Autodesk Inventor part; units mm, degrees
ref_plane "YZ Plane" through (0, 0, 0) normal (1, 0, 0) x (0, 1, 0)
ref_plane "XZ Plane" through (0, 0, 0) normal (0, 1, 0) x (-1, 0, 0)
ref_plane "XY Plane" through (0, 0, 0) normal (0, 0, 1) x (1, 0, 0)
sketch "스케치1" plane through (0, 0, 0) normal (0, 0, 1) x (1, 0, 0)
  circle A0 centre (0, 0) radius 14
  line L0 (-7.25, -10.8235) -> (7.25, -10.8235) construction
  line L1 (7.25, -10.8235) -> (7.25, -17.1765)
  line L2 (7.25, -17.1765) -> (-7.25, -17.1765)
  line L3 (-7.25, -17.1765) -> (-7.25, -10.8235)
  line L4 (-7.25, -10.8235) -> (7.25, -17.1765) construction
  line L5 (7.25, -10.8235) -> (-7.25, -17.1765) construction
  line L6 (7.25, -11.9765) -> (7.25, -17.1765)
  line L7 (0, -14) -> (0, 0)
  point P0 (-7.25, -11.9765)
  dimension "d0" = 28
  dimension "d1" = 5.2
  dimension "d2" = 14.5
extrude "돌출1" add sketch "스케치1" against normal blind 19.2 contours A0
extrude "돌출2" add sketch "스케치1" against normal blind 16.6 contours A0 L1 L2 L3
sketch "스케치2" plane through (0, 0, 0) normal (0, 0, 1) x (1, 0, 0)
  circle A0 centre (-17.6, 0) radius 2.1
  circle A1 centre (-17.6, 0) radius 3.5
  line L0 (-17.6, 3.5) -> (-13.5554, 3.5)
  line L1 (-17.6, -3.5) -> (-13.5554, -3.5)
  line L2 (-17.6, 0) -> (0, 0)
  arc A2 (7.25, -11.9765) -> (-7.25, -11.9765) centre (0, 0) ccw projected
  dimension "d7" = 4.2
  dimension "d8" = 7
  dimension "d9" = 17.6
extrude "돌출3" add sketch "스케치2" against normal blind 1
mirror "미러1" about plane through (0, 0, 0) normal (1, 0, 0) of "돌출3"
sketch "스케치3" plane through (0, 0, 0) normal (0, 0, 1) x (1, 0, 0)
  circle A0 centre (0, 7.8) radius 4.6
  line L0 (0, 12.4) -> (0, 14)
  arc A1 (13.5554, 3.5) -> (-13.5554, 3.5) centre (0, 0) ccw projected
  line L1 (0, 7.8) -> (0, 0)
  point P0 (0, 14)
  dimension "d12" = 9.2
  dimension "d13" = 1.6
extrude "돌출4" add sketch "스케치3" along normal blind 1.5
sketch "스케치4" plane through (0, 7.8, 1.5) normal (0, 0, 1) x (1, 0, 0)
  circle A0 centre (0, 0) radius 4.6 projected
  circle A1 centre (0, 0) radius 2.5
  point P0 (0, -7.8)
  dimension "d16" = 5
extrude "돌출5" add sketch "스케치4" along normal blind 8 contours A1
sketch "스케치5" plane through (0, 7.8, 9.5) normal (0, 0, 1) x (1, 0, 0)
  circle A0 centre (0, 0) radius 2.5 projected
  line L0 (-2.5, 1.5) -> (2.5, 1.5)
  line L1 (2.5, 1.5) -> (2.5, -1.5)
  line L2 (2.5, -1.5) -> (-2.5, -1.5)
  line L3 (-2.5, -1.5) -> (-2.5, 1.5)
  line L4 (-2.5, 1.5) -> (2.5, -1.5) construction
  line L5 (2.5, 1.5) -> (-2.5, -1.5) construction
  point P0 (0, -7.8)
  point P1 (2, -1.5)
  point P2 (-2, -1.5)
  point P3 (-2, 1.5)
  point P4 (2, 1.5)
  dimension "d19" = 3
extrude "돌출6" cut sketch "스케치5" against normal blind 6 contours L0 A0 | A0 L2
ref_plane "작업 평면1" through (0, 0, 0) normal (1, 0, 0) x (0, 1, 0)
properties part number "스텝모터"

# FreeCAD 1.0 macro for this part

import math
import FreeCAD as App
import Part
import Sketcher
from FreeCAD import Vector

doc = App.newDocument("Part")
body = doc.addObject("PartDesign::Body", "Body")

# Sketch on XY plane
sketch1 = body.newObject("Sketcher::SketchObject", "Sketch")
sketch1.AttachmentSupport = (doc.getObject("XY_Plane"), [""])
sketch1.MapMode = "FlatFace"
sketch1.addGeometry(Part.Circle(Vector(0, 0, 0), Vector(0, 0, 1), 14), False)
sketch1.addConstraint(Sketcher.Constraint("Coincident", 0, 3, -1, 1))
sketch1.addConstraint(Sketcher.Constraint("Diameter", 0, 28.0))
pad1 = body.newObject("PartDesign::Pad", "Pad")
pad1.Profile = sketch1
pad1.Length = 19.2
pad1.Reversed = True

# Sketch on XY plane
sketch2 = body.newObject("Sketcher::SketchObject", "Sketch001")
sketch2.AttachmentSupport = (doc.getObject("XY_Plane"), [""])
sketch2.MapMode = "FlatFace"
sketch2.addGeometry(Part.ArcOfCircle(Part.Circle(Vector(0, 0, 0), Vector(0, 0, 1), 14), math.radians(-121.188622), math.radians(-58.811294)), False)
sketch2.addGeometry(Part.LineSegment(Vector(-7.25, -11.97654, 0), Vector(-7.25, -17.1765, 0)), False)
sketch2.addGeometry(Part.LineSegment(Vector(-7.25, -17.1765, 0), Vector(7.25, -17.1765, 0)), False)
sketch2.addGeometry(Part.LineSegment(Vector(7.25, -17.1765, 0), Vector(7.25, -11.9765, 0)), False)
sketch2.addConstraint(Sketcher.Constraint("Coincident", 0, 1, 1, 1))
sketch2.addConstraint(Sketcher.Constraint("Coincident", 1, 2, 2, 1))
sketch2.addConstraint(Sketcher.Constraint("Coincident", 2, 2, 3, 1))
sketch2.addConstraint(Sketcher.Constraint("Coincident", 3, 2, 0, 2))
sketch2.addConstraint(Sketcher.Constraint("Vertical", 1))
sketch2.addConstraint(Sketcher.Constraint("Horizontal", 2))
sketch2.addConstraint(Sketcher.Constraint("Vertical", 3))
sketch2.addConstraint(Sketcher.Constraint("Coincident", 0, 3, -1, 1))
sketch2.addConstraint(Sketcher.Constraint("Horizontal", 0, 1, 3, 2))
sketch2.addConstraint(Sketcher.Constraint("Radius", 0, 14.0))
sketch2.addConstraint(Sketcher.Constraint("DistanceX", 2, 1, 2, 2, 14.5))
sketch2.addConstraint(Sketcher.Constraint("DistanceY", 1, 2, 1, 1, 5.2))
pad2 = body.newObject("PartDesign::Pad", "Pad001")
pad2.Profile = sketch2
pad2.Length = 16.6
pad2.Reversed = True

# Sketch on XY plane
sketch3 = body.newObject("Sketcher::SketchObject", "Sketch002")
sketch3.AttachmentSupport = (doc.getObject("XY_Plane"), [""])
sketch3.MapMode = "FlatFace"
sketch3.addGeometry(Part.ArcOfCircle(Part.Circle(Vector(-17.6, 0, 0), Vector(0, 0, 1), 3.5), math.radians(90), math.radians(270)), False)
sketch3.addGeometry(Part.LineSegment(Vector(-17.6, -3.5, 0), Vector(-13.5554, -3.5, 0)), False)
sketch3.addGeometry(Part.ArcOfCircle(Part.Circle(Vector(0, 0, 0), Vector(0, 0, 1), 13.999966), math.radians(165.522445), math.radians(194.477555)), False)
sketch3.addGeometry(Part.LineSegment(Vector(-13.5554, 3.5, 0), Vector(-17.6, 3.5, 0)), False)
sketch3.addGeometry(Part.Circle(Vector(-17.6, 0, 0), Vector(0, 0, 1), 2.1), False)
sketch3.addConstraint(Sketcher.Constraint("Tangent", 0, 2, 1, 1))
sketch3.addConstraint(Sketcher.Constraint("Coincident", 1, 2, 2, 2))
sketch3.addConstraint(Sketcher.Constraint("Coincident", 2, 1, 3, 1))
sketch3.addConstraint(Sketcher.Constraint("Tangent", 3, 2, 0, 1))
sketch3.addConstraint(Sketcher.Constraint("Horizontal", 1))
sketch3.addConstraint(Sketcher.Constraint("Horizontal", 3))
sketch3.addConstraint(Sketcher.Constraint("Coincident", 2, 3, -1, 1))
sketch3.addConstraint(Sketcher.Constraint("Coincident", 4, 3, 0, 3))
sketch3.addConstraint(Sketcher.Constraint("PointOnObject", 0, 3, -1))
sketch3.addConstraint(Sketcher.Constraint("Diameter", 4, 4.2))
sketch3.addConstraint(Sketcher.Constraint("Radius", 0, 3.5))
sketch3.addConstraint(Sketcher.Constraint("Radius", 2, 14.0))
sketch3.addConstraint(Sketcher.Constraint("DistanceX", 0, 3, -1, 1, 17.6))
pad3 = body.newObject("PartDesign::Pad", "Pad002")
pad3.Profile = sketch3
pad3.Length = 1
pad3.Reversed = True
doc.recompute()

mirrored = body.newObject("PartDesign::Mirrored", "Mirrored")
mirrored.Originals = [pad3]
mirrored.MirrorPlane = (doc.getObject("YZ_Plane"), [""])
body.Tip = mirrored

# Sketch on XY plane
sketch4 = body.newObject("Sketcher::SketchObject", "Sketch003")
sketch4.AttachmentSupport = (doc.getObject("XY_Plane"), [""])
sketch4.MapMode = "FlatFace"
sketch4.addGeometry(Part.Circle(Vector(0, 7.8, 0), Vector(0, 0, 1), 4.6), False)
sketch4.addConstraint(Sketcher.Constraint("PointOnObject", 0, 3, -2))
sketch4.addConstraint(Sketcher.Constraint("Diameter", 0, 9.2))
sketch4.addConstraint(Sketcher.Constraint("DistanceY", -1, 1, 0, 3, 7.8))
pad4 = body.newObject("PartDesign::Pad", "Pad003")
pad4.Profile = sketch4
pad4.Length = 1.5

# Sketch on XY plane
sketch5 = body.newObject("Sketcher::SketchObject", "Sketch004")
sketch5.AttachmentSupport = (doc.getObject("XY_Plane"), [""])
sketch5.MapMode = "FlatFace"
sketch5.AttachmentOffset = App.Placement(Vector(0, 0, 1.5), App.Rotation())
sketch5.addGeometry(Part.Circle(Vector(0, 7.8, 0), Vector(0, 0, 1), 2.5), False)
sketch5.addConstraint(Sketcher.Constraint("PointOnObject", 0, 3, -2))
sketch5.addConstraint(Sketcher.Constraint("Diameter", 0, 5.0))
sketch5.addConstraint(Sketcher.Constraint("DistanceY", -1, 1, 0, 3, 7.8))
pad5 = body.newObject("PartDesign::Pad", "Pad004")
pad5.Profile = sketch5
pad5.Length = 8

# Sketch on XY plane
sketch6 = body.newObject("Sketcher::SketchObject", "Sketch005")
sketch6.AttachmentSupport = (doc.getObject("XY_Plane"), [""])
sketch6.MapMode = "FlatFace"
sketch6.AttachmentOffset = App.Placement(Vector(0, 0, 9.5), App.Rotation())
sketch6.addGeometry(Part.LineSegment(Vector(-2, 9.3, 0), Vector(2, 9.3, 0)), False)
sketch6.addGeometry(Part.ArcOfCircle(Part.Circle(Vector(0, 7.8, 0), Vector(0, 0, 1), 2.5), math.radians(36.869898), math.radians(143.130102)), False)
sketch6.addGeometry(Part.ArcOfCircle(Part.Circle(Vector(0, 7.8, 0), Vector(0, 0, 1), 2.5), math.radians(-143.130102), math.radians(-36.869898)), False)
sketch6.addGeometry(Part.LineSegment(Vector(2, 6.3, 0), Vector(-2, 6.3, 0)), False)
sketch6.addConstraint(Sketcher.Constraint("Coincident", 0, 1, 1, 2))
sketch6.addConstraint(Sketcher.Constraint("Coincident", 1, 1, 0, 2))
sketch6.addConstraint(Sketcher.Constraint("Coincident", 2, 1, 3, 2))
sketch6.addConstraint(Sketcher.Constraint("Coincident", 3, 1, 2, 2))
sketch6.addConstraint(Sketcher.Constraint("Horizontal", 0))
sketch6.addConstraint(Sketcher.Constraint("Horizontal", 3))
sketch6.addConstraint(Sketcher.Constraint("Coincident", 2, 3, 1, 3))
sketch6.addConstraint(Sketcher.Constraint("Equal", 1, 2))
sketch6.addConstraint(Sketcher.Constraint("PointOnObject", 1, 3, -2))
sketch6.addConstraint(Sketcher.Constraint("Vertical", 0, 1, 2, 1))
sketch6.addConstraint(Sketcher.Constraint("DistanceY", 2, 1, 0, 1, 3.0))
sketch6.addConstraint(Sketcher.Constraint("Radius", 1, 2.5))
sketch6.addConstraint(Sketcher.Constraint("DistanceY", -1, 1, 1, 3, 7.8))
pocket1 = body.newObject("PartDesign::Pocket", "Pocket")
pocket1.Profile = sketch6
pocket1.Length = 6

doc.recompute()
